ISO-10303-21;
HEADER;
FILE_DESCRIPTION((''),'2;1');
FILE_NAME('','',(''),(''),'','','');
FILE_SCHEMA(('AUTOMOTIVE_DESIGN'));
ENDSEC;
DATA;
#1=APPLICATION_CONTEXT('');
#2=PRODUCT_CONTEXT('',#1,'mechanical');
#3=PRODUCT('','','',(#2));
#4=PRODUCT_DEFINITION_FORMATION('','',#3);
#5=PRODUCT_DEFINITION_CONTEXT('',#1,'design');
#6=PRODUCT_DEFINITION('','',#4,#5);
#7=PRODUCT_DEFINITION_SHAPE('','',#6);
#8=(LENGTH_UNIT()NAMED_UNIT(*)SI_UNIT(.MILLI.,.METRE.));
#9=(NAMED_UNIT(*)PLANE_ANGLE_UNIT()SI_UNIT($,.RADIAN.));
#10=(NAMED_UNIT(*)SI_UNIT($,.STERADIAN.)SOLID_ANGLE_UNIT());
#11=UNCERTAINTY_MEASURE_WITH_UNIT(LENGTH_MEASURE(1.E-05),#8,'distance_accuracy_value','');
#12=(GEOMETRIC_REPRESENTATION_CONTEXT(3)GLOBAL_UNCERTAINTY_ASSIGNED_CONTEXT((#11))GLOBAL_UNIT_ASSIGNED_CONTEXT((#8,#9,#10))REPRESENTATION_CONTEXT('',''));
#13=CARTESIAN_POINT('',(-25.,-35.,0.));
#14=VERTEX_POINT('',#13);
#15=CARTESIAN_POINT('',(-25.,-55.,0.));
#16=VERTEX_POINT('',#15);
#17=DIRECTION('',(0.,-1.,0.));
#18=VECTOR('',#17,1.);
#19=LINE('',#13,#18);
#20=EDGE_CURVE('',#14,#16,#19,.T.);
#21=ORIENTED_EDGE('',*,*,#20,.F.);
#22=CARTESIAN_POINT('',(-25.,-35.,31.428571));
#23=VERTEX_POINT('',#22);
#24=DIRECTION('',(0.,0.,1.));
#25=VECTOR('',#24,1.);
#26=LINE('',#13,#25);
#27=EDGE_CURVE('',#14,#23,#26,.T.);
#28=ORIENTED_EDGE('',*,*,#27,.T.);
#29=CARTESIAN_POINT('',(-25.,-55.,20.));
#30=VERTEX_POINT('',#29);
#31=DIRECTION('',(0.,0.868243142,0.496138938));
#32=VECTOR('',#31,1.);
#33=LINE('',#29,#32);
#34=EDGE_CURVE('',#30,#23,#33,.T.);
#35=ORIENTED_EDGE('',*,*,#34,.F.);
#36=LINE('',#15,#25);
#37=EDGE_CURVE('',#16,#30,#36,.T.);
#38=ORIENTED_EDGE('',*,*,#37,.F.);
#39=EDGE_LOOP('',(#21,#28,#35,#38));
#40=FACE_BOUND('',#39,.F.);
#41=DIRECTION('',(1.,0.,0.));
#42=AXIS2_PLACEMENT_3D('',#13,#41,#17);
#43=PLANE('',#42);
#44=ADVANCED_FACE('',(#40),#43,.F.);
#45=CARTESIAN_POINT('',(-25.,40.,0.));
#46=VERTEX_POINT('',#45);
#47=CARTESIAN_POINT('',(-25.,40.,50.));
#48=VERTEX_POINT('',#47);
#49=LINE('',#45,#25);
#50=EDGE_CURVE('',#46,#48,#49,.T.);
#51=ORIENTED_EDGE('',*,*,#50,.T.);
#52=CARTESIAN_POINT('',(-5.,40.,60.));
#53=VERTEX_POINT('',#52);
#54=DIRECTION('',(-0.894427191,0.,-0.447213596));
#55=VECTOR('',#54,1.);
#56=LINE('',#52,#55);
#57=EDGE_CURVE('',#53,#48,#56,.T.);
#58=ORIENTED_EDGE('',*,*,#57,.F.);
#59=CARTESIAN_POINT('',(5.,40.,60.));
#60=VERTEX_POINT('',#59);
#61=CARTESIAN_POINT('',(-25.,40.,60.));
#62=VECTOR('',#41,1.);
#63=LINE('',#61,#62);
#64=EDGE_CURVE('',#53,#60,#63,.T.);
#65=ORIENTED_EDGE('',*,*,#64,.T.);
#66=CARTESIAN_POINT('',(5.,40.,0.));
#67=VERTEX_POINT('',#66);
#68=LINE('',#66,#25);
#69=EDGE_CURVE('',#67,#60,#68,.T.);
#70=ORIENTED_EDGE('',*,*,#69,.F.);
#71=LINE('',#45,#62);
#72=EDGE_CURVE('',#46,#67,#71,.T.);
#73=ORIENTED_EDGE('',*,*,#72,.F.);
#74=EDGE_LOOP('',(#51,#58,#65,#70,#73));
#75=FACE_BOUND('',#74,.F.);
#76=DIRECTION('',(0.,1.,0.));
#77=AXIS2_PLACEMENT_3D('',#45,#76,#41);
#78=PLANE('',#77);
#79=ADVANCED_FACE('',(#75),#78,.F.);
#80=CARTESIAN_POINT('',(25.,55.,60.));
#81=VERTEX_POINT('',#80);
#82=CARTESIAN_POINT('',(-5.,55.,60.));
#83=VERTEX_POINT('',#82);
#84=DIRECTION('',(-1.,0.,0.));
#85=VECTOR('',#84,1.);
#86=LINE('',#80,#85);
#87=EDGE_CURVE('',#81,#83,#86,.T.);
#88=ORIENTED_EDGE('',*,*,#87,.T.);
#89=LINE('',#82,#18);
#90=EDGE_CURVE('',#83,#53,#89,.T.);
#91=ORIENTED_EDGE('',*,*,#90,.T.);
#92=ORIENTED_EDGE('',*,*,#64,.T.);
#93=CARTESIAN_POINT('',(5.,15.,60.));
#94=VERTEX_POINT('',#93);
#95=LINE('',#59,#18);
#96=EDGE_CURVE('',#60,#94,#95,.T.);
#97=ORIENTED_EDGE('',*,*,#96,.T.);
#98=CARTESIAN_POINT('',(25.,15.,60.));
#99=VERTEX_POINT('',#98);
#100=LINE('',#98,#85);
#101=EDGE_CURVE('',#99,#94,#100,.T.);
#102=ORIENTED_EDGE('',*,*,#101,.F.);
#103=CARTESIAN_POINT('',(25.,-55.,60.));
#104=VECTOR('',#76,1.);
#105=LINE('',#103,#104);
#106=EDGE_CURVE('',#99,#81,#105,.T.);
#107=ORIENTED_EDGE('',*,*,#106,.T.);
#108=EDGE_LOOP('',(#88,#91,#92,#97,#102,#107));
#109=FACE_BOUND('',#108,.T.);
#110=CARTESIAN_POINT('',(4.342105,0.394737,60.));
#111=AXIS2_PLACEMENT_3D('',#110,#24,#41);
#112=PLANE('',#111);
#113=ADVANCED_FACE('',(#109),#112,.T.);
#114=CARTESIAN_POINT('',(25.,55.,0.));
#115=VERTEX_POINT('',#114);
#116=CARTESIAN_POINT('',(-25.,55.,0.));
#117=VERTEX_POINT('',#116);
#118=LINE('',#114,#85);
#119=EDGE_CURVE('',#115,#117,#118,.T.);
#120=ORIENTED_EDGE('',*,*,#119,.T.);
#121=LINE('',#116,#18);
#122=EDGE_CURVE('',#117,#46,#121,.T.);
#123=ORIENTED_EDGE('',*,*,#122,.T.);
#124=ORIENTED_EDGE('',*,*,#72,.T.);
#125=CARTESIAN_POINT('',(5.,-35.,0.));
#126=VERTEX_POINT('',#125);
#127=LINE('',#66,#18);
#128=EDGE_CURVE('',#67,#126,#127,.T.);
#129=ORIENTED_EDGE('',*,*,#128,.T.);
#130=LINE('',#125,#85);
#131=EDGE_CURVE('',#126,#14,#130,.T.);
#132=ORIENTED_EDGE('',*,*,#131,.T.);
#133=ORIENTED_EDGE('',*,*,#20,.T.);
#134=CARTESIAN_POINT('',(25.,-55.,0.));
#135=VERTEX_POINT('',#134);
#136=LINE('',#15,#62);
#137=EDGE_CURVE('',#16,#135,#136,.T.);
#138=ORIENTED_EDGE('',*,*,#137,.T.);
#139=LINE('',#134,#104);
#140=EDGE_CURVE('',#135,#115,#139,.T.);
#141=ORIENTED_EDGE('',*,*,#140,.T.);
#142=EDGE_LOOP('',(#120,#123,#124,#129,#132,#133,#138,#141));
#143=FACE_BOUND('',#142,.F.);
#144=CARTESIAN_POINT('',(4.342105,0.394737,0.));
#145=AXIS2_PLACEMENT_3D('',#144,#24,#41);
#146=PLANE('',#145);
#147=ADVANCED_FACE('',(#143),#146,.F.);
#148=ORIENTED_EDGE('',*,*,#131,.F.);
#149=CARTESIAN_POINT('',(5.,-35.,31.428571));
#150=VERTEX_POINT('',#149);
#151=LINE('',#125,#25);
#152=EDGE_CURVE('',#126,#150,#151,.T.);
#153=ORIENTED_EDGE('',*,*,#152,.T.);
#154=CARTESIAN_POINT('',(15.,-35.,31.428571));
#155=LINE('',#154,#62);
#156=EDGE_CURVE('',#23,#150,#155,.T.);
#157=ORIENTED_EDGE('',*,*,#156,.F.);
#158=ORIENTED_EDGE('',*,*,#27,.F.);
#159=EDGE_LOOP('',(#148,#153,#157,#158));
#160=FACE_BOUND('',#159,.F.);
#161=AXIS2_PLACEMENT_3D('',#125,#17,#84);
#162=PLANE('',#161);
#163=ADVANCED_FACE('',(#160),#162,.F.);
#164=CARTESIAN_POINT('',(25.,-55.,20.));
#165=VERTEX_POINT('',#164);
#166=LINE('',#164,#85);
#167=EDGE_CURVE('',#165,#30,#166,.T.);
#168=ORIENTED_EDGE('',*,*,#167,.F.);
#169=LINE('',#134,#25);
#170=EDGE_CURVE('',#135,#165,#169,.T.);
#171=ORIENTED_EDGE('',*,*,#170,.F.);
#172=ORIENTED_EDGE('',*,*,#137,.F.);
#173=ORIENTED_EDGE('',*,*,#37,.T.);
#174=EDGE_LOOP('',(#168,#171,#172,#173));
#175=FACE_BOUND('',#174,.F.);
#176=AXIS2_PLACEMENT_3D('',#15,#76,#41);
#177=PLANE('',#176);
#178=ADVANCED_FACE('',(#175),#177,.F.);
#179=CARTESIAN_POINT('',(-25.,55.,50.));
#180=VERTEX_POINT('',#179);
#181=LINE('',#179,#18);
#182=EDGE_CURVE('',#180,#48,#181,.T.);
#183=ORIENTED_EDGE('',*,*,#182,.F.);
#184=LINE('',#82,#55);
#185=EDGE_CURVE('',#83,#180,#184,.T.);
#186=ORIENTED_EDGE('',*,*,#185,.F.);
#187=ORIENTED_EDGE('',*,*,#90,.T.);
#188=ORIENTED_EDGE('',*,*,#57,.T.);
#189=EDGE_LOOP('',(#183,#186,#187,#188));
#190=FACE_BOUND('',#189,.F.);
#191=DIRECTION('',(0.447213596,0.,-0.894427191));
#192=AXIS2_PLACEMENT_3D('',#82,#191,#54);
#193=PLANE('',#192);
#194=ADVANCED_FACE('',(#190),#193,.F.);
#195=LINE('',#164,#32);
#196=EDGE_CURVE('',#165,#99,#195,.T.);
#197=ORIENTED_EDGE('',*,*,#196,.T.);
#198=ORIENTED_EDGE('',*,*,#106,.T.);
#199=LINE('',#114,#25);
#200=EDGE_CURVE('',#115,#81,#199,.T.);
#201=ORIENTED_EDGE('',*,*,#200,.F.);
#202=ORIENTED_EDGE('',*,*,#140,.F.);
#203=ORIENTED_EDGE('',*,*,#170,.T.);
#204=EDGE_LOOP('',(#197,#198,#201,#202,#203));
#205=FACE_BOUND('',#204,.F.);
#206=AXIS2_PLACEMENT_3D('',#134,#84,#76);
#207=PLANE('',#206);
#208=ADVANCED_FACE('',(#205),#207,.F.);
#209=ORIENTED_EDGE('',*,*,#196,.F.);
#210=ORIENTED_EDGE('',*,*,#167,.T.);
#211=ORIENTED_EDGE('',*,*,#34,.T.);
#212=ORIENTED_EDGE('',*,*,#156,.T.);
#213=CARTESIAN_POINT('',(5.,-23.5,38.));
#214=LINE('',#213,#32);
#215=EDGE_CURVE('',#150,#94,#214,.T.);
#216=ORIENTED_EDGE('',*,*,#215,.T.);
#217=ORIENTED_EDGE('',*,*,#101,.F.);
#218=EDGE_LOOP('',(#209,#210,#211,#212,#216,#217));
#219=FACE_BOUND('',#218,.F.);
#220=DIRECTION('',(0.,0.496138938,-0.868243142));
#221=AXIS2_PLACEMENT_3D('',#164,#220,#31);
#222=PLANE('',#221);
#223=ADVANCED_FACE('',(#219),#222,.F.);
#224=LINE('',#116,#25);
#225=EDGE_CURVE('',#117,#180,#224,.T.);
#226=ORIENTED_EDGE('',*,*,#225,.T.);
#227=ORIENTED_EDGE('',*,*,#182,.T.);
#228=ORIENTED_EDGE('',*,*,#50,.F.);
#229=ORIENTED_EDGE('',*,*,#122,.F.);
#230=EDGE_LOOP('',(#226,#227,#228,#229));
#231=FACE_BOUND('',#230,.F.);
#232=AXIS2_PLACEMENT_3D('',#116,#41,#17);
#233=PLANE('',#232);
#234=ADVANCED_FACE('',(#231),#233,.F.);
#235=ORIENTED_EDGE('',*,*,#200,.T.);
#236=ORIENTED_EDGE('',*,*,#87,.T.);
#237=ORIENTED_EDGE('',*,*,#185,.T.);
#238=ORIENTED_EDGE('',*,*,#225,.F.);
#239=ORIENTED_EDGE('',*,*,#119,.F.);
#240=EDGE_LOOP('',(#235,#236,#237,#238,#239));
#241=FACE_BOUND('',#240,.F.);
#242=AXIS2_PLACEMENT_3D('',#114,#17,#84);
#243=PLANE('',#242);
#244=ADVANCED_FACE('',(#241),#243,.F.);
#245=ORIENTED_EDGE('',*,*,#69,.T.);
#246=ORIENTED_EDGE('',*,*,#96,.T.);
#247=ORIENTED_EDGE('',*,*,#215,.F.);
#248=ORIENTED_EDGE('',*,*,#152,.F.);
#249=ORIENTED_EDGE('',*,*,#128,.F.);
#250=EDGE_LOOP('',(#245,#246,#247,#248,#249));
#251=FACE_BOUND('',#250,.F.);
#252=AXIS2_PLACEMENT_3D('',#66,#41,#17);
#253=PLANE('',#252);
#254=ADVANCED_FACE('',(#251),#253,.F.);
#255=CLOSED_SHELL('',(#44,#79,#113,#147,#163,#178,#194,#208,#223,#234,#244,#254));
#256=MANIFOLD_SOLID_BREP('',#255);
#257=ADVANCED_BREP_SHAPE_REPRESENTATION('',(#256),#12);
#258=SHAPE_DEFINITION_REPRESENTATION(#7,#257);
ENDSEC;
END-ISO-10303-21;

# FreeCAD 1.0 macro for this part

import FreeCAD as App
import Part
import Sketcher

V = App.Vector
Q = App.Units.Quantity

doc = App.newDocument("Part")
body = doc.addObject("PartDesign::Body", "Body")

# Sketch on XY plane
sketch1 = body.newObject("Sketcher::SketchObject", "Sketch")
sketch1.AttachmentSupport = (doc.getObject("XY_Plane"), [""])
sketch1.MapMode = "FlatFace"
sketch1.addGeometry([
    Part.LineSegment(V(25, -55, 0), V(25, 55, 0)),  # 0
    Part.LineSegment(V(25, 55, 0), V(-25, 55, 0)),  # 1
    Part.LineSegment(V(-25, 55, 0), V(-25, 40, 0)),  # 2
    Part.LineSegment(V(-25, 40, 0), V(5, 40, 0)),  # 3
    Part.LineSegment(V(5, 40, 0), V(5, -35, 0)),  # 4
    Part.LineSegment(V(5, -35, 0), V(-25, -35, 0)),  # 5
    Part.LineSegment(V(-25, -35, 0), V(-25, -55, 0)),  # 6
    Part.LineSegment(V(-25, -55, 0), V(25, -55, 0)),  # 7
], False)
sketch1.addConstraint([
    Sketcher.Constraint("Coincident", 0, 2, 1, 1),
    Sketcher.Constraint("Coincident", 1, 2, 2, 1),
    Sketcher.Constraint("Coincident", 2, 2, 3, 1),
    Sketcher.Constraint("Coincident", 3, 2, 4, 1),
    Sketcher.Constraint("Coincident", 4, 2, 5, 1),
    Sketcher.Constraint("Coincident", 5, 2, 6, 1),
    Sketcher.Constraint("Coincident", 6, 2, 7, 1),
    Sketcher.Constraint("Coincident", 7, 2, 0, 1),
    Sketcher.Constraint("Vertical", 0),
    Sketcher.Constraint("Horizontal", 1),
    Sketcher.Constraint("Vertical", 2),
    Sketcher.Constraint("Horizontal", 3),
    Sketcher.Constraint("Vertical", 4),
    Sketcher.Constraint("Horizontal", 5),
    Sketcher.Constraint("Vertical", 6),
    Sketcher.Constraint("Horizontal", 7),
    Sketcher.Constraint("Symmetric", 0, 2, 6, 2, -1, 1),
    Sketcher.Constraint("Vertical", 2, 2, 5, 2),
    Sketcher.Constraint("DistanceX", 1, 2, 1, 1, Q("50 mm")),
    Sketcher.Constraint("DistanceX", 3, 1, 3, 2, Q("30 mm")),
    Sketcher.Constraint("DistanceY", 0, 1, 0, 2, Q("110 mm")),
    Sketcher.Constraint("DistanceY", 2, 2, 2, 1, Q("15 mm")),
    Sketcher.Constraint("DistanceY", 4, 2, 4, 1, Q("75 mm")),
])
pad1 = body.newObject("PartDesign::Pad", "Pad")
pad1.Profile = sketch1
pad1.Length = 60

# Sketch on XZ plane
sketch2 = body.newObject("Sketcher::SketchObject", "Sketch001")
sketch2.AttachmentSupport = (doc.getObject("XZ_Plane"), [""])
sketch2.MapMode = "FlatFace"
sketch2.AttachmentOffset = App.Placement(V(0, 0, -55), App.Rotation())
sketch2.addGeometry([
    Part.LineSegment(V(-25, 60, 0), V(-5, 60, 0)),
    Part.LineSegment(V(-5, 60, 0), V(-25, 50, 0)),
    Part.LineSegment(V(-25, 50, 0), V(-25, 60, 0)),
], False)
sketch2.addConstraint([
    Sketcher.Constraint("Coincident", 0, 2, 1, 1),
    Sketcher.Constraint("Coincident", 1, 2, 2, 1),
    Sketcher.Constraint("Coincident", 2, 2, 0, 1),
    Sketcher.Constraint("Horizontal", 0),
    Sketcher.Constraint("Vertical", 2),
    Sketcher.Constraint("DistanceX", 0, 1, 0, 2, Q("20 mm")),
    Sketcher.Constraint("DistanceY", 2, 1, 2, 2, Q("10 mm")),
    Sketcher.Constraint("DistanceX", 0, 2, -1, 1, Q("5 mm")),
    Sketcher.Constraint("DistanceY", -1, 1, 0, 2, Q("60 mm")),
])
pocket1 = body.newObject("PartDesign::Pocket", "Pocket")
pocket1.Profile = sketch2
pocket1.Length = 15
pocket1.Reversed = True

# Sketch on YZ plane
sketch3 = body.newObject("Sketcher::SketchObject", "Sketch002")
sketch3.AttachmentSupport = (doc.getObject("YZ_Plane"), [""])
sketch3.MapMode = "FlatFace"
sketch3.AttachmentOffset = App.Placement(V(0, 0, 25), App.Rotation())
sketch3.addGeometry([
    Part.LineSegment(V(-55, 20, 0), V(15, 60, 0)),
    Part.LineSegment(V(15, 60, 0), V(-55, 60, 0)),
    Part.LineSegment(V(-55, 60, 0), V(-55, 20, 0)),
], False)
sketch3.addConstraint([
    Sketcher.Constraint("Coincident", 0, 2, 1, 1),
    Sketcher.Constraint("Coincident", 1, 2, 2, 1),
    Sketcher.Constraint("Coincident", 2, 2, 0, 1),
    Sketcher.Constraint("Horizontal", 1),
    Sketcher.Constraint("Vertical", 2),
    Sketcher.Constraint("DistanceX", 1, 2, 1, 1, Q("70 mm")),
    Sketcher.Constraint("DistanceY", 2, 2, 2, 1, Q("40 mm")),
    Sketcher.Constraint("DistanceX", -1, 1, 0, 2, Q("15 mm")),
    Sketcher.Constraint("DistanceY", -1, 1, 0, 2, Q("60 mm")),
])
pocket2 = body.newObject("PartDesign::Pocket", "Pocket001")
pocket2.Profile = sketch3
pocket2.Length = 50

doc.recompute()
